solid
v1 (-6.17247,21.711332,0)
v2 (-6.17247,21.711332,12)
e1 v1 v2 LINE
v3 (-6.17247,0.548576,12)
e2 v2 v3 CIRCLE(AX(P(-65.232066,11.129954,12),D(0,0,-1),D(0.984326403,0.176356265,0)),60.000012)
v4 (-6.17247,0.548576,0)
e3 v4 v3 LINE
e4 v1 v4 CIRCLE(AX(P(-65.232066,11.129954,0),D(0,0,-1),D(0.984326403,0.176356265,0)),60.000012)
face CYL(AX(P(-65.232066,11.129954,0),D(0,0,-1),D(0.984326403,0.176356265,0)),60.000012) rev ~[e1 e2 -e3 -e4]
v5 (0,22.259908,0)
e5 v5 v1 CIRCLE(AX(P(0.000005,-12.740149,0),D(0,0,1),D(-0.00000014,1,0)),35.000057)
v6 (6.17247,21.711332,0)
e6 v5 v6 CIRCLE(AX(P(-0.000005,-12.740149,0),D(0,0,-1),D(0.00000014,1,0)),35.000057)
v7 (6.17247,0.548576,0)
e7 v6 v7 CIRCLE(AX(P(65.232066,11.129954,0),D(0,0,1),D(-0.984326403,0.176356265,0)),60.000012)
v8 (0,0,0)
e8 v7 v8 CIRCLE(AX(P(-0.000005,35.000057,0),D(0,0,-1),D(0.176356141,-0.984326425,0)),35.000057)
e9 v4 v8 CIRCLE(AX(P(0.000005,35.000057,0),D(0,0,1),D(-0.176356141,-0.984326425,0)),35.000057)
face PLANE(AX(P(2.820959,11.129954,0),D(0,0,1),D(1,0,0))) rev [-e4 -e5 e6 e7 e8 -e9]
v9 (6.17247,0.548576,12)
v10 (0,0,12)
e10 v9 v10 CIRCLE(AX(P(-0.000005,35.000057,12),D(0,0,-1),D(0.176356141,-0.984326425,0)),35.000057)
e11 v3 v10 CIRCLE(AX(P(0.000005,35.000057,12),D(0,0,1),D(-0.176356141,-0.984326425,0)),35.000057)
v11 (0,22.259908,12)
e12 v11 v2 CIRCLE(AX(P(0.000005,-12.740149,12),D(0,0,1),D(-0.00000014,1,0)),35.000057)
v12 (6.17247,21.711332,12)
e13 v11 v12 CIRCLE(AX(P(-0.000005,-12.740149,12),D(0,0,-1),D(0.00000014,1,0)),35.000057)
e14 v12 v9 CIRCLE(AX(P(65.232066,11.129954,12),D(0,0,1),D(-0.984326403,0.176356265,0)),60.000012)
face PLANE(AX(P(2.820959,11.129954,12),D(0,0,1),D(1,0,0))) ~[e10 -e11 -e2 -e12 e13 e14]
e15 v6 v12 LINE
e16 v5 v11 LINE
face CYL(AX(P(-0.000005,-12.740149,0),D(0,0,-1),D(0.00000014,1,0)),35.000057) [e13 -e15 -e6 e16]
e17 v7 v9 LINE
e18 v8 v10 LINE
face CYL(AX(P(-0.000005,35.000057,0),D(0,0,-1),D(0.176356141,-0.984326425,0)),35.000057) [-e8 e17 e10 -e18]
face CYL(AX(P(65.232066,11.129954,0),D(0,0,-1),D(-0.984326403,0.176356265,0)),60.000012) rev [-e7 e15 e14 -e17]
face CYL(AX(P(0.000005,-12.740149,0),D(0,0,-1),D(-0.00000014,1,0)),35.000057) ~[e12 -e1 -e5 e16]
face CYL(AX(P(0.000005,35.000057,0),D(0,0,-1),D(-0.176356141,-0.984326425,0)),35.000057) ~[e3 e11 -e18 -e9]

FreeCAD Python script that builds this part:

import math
import FreeCAD as App
import Part
import Sketcher

doc = App.newDocument("Part")
body = doc.addObject("PartDesign::Body", "Body")

sketch1 = doc.addObject("Sketcher::SketchObject", "Sketch")
body.addObject(sketch1)
sketch1.AttachmentSupport = (doc.XY_Plane, [""])
sketch1.MapMode = "FlatFace"
sketch1.addGeometry(Part.LineSegment(App.Vector(0, 0, 0), App.Vector(0, 22, 0)), False)
sketch1.addGeometry(Part.ArcOfCircle(Part.Circle(App.Vector(0, -13, 0), App.Vector(0, 0, 1), 35), math.radians(90), math.radians(100.16)), False)
sketch1.addGeometry(Part.ArcOfCircle(Part.Circle(App.Vector(-65, 11, 0), App.Vector(0, 0, 1), 60), math.radians(-10), math.radians(10)), False)
sketch1.addGeometry(Part.ArcOfCircle(Part.Circle(App.Vector(0, 35, 0), App.Vector(0, 0, 1), 35), math.radians(-100.16), math.radians(-90)), False)
sketch1.addConstraint(Sketcher.Constraint("Coincident", 0, 2, 1, 1))
sketch1.addConstraint(Sketcher.Constraint("Coincident", 1, 2, 2, 2))
sketch1.addConstraint(Sketcher.Constraint("Coincident", 2, 1, 3, 1))
sketch1.addConstraint(Sketcher.Constraint("Coincident", 3, 2, 0, 1))
sketch1.addConstraint(Sketcher.Constraint("Vertical", 0))
sketch1.addConstraint(Sketcher.Constraint("Coincident", 3, 2, -1, 1))
sketch1.addConstraint(Sketcher.Constraint("Equal", 1, 3))
sketch1.addConstraint(Sketcher.Constraint("Vertical", 1, 3, 3, 3))
sketch1.addConstraint(Sketcher.Constraint("Vertical", 1, 2, 2, 1))
sketch1.addConstraint(Sketcher.Constraint("Radius", 1, 35.000057))
sketch1.addConstraint(Sketcher.Constraint("Radius", 2, 60.000012))
sketch1.addConstraint(Sketcher.Constraint("DistanceY", 0, 1, 0, 2, 22.259908))
sketch1.addConstraint(Sketcher.Constraint("DistanceX", 1, 2, -1, 1, 6.17247))
sketch1.addConstraint(Sketcher.Constraint("DistanceX", 2, 3, 1, 3, 65.232071))
pad1 = doc.addObject("PartDesign::Pad", "Pad")
body.addObject(pad1)
pad1.Profile = sketch1
pad1.Length = 12
body2 = doc.addObject("PartDesign::Body", "Body001")
doc.recompute()

body2.BaseFeature = body
doc.recompute()

mirroring = doc.addObject("Part::Mirroring", "Mirroring")
mirroring.Source = body
mirroring.Base = App.Vector(0, 0, 0)
mirroring.Normal = App.Vector(1, 0, 0)
body3 = doc.addObject("PartDesign::Body", "Body002")
body3.BaseFeature = mirroring
boolean = doc.addObject("PartDesign::Boolean", "Boolean")
body2.addObject(boolean)
boolean.Type = "Fuse"
boolean.addObjects([body3])
doc.recompute()
mirroring.Visibility = False

doc.recompute()
